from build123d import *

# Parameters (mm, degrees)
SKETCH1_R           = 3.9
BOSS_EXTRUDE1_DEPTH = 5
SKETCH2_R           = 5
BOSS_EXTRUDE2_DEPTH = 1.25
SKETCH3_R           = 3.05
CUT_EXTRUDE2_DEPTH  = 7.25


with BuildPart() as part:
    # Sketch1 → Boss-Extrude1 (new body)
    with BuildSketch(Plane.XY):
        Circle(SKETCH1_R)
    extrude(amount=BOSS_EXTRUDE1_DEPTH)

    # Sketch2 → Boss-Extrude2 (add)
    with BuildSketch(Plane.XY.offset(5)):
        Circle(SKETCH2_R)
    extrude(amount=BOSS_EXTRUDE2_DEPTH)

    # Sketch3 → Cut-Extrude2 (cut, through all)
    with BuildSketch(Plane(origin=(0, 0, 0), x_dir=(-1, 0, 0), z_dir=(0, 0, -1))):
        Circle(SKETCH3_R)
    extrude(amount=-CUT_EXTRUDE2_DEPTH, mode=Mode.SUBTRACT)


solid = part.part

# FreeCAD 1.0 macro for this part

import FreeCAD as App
import Part
import Sketcher

doc = App.newDocument("Part")
params = doc.addObject("Spreadsheet::Sheet", "Params")
for row, (alias, value) in enumerate([
    ("sketch1_diameter", "7.8 mm"),
    ("pad1_length", "5 mm"),
    ("sketch2_diameter", "10 mm"),
    ("pad2_length", "1.25 mm"),
    ("sketch3_diameter", "6.1 mm"),
], start=1):
    params.set(f"A{row}", alias)
    params.set(f"B{row}", "=" + value)
    params.setAlias(f"B{row}", alias)

body = doc.addObject("PartDesign::Body", "Body")

sketch1 = doc.addObject("Sketcher::SketchObject", "Sketch")
body.addObject(sketch1)
sketch1.AttachmentSupport = (doc.XY_Plane, [""])
sketch1.MapMode = "FlatFace"
sketch1.addGeometry(Part.Circle(App.Vector(0, 0, 0), App.Vector(0, 0, 1), 3.9), False)
sketch1.addConstraint(Sketcher.Constraint("Coincident", 0, 3, -1, 1))
sketch1.addConstraint(Sketcher.Constraint("Diameter", 0, 7.8))
sketch1.setExpression("Constraints[1]", "Params.sketch1_diameter")
pad1 = doc.addObject("PartDesign::Pad", "Pad")
body.addObject(pad1)
pad1.Profile = sketch1
pad1.setExpression("Length", "Params.pad1_length")

sketch2 = doc.addObject("Sketcher::SketchObject", "Sketch001")
body.addObject(sketch2)
sketch2.AttachmentSupport = (doc.XY_Plane, [""])
sketch2.MapMode = "FlatFace"
sketch2.AttachmentOffset = App.Placement(App.Vector(0, 0, 5), App.Rotation())
sketch2.addGeometry(Part.Circle(App.Vector(0, 0, 0), App.Vector(0, 0, 1), 5), False)
sketch2.addConstraint(Sketcher.Constraint("Coincident", 0, 3, -1, 1))
sketch2.addConstraint(Sketcher.Constraint("Diameter", 0, 10.0))
sketch2.setExpression("Constraints[1]", "Params.sketch2_diameter")
pad2 = doc.addObject("PartDesign::Pad", "Pad001")
body.addObject(pad2)
pad2.Profile = sketch2
pad2.setExpression("Length", "Params.pad2_length")

sketch3 = doc.addObject("Sketcher::SketchObject", "Sketch002")
body.addObject(sketch3)
sketch3.AttachmentSupport = (doc.XY_Plane, [""])
sketch3.MapMode = "FlatFace"
sketch3.addGeometry(Part.Circle(App.Vector(0, 0, 0), App.Vector(0, 0, 1), 3), False)
sketch3.addConstraint(Sketcher.Constraint("Coincident", 0, 3, -1, 1))
sketch3.addConstraint(Sketcher.Constraint("Diameter", 0, 6.1))
sketch3.setExpression("Constraints[1]", "Params.sketch3_diameter")
pocket1 = doc.addObject("PartDesign::Pocket", "Pocket")
body.addObject(pocket1)
pocket1.Profile = sketch3
pocket1.Type = "ThroughAll"
pocket1.Reversed = True

doc.recompute()
